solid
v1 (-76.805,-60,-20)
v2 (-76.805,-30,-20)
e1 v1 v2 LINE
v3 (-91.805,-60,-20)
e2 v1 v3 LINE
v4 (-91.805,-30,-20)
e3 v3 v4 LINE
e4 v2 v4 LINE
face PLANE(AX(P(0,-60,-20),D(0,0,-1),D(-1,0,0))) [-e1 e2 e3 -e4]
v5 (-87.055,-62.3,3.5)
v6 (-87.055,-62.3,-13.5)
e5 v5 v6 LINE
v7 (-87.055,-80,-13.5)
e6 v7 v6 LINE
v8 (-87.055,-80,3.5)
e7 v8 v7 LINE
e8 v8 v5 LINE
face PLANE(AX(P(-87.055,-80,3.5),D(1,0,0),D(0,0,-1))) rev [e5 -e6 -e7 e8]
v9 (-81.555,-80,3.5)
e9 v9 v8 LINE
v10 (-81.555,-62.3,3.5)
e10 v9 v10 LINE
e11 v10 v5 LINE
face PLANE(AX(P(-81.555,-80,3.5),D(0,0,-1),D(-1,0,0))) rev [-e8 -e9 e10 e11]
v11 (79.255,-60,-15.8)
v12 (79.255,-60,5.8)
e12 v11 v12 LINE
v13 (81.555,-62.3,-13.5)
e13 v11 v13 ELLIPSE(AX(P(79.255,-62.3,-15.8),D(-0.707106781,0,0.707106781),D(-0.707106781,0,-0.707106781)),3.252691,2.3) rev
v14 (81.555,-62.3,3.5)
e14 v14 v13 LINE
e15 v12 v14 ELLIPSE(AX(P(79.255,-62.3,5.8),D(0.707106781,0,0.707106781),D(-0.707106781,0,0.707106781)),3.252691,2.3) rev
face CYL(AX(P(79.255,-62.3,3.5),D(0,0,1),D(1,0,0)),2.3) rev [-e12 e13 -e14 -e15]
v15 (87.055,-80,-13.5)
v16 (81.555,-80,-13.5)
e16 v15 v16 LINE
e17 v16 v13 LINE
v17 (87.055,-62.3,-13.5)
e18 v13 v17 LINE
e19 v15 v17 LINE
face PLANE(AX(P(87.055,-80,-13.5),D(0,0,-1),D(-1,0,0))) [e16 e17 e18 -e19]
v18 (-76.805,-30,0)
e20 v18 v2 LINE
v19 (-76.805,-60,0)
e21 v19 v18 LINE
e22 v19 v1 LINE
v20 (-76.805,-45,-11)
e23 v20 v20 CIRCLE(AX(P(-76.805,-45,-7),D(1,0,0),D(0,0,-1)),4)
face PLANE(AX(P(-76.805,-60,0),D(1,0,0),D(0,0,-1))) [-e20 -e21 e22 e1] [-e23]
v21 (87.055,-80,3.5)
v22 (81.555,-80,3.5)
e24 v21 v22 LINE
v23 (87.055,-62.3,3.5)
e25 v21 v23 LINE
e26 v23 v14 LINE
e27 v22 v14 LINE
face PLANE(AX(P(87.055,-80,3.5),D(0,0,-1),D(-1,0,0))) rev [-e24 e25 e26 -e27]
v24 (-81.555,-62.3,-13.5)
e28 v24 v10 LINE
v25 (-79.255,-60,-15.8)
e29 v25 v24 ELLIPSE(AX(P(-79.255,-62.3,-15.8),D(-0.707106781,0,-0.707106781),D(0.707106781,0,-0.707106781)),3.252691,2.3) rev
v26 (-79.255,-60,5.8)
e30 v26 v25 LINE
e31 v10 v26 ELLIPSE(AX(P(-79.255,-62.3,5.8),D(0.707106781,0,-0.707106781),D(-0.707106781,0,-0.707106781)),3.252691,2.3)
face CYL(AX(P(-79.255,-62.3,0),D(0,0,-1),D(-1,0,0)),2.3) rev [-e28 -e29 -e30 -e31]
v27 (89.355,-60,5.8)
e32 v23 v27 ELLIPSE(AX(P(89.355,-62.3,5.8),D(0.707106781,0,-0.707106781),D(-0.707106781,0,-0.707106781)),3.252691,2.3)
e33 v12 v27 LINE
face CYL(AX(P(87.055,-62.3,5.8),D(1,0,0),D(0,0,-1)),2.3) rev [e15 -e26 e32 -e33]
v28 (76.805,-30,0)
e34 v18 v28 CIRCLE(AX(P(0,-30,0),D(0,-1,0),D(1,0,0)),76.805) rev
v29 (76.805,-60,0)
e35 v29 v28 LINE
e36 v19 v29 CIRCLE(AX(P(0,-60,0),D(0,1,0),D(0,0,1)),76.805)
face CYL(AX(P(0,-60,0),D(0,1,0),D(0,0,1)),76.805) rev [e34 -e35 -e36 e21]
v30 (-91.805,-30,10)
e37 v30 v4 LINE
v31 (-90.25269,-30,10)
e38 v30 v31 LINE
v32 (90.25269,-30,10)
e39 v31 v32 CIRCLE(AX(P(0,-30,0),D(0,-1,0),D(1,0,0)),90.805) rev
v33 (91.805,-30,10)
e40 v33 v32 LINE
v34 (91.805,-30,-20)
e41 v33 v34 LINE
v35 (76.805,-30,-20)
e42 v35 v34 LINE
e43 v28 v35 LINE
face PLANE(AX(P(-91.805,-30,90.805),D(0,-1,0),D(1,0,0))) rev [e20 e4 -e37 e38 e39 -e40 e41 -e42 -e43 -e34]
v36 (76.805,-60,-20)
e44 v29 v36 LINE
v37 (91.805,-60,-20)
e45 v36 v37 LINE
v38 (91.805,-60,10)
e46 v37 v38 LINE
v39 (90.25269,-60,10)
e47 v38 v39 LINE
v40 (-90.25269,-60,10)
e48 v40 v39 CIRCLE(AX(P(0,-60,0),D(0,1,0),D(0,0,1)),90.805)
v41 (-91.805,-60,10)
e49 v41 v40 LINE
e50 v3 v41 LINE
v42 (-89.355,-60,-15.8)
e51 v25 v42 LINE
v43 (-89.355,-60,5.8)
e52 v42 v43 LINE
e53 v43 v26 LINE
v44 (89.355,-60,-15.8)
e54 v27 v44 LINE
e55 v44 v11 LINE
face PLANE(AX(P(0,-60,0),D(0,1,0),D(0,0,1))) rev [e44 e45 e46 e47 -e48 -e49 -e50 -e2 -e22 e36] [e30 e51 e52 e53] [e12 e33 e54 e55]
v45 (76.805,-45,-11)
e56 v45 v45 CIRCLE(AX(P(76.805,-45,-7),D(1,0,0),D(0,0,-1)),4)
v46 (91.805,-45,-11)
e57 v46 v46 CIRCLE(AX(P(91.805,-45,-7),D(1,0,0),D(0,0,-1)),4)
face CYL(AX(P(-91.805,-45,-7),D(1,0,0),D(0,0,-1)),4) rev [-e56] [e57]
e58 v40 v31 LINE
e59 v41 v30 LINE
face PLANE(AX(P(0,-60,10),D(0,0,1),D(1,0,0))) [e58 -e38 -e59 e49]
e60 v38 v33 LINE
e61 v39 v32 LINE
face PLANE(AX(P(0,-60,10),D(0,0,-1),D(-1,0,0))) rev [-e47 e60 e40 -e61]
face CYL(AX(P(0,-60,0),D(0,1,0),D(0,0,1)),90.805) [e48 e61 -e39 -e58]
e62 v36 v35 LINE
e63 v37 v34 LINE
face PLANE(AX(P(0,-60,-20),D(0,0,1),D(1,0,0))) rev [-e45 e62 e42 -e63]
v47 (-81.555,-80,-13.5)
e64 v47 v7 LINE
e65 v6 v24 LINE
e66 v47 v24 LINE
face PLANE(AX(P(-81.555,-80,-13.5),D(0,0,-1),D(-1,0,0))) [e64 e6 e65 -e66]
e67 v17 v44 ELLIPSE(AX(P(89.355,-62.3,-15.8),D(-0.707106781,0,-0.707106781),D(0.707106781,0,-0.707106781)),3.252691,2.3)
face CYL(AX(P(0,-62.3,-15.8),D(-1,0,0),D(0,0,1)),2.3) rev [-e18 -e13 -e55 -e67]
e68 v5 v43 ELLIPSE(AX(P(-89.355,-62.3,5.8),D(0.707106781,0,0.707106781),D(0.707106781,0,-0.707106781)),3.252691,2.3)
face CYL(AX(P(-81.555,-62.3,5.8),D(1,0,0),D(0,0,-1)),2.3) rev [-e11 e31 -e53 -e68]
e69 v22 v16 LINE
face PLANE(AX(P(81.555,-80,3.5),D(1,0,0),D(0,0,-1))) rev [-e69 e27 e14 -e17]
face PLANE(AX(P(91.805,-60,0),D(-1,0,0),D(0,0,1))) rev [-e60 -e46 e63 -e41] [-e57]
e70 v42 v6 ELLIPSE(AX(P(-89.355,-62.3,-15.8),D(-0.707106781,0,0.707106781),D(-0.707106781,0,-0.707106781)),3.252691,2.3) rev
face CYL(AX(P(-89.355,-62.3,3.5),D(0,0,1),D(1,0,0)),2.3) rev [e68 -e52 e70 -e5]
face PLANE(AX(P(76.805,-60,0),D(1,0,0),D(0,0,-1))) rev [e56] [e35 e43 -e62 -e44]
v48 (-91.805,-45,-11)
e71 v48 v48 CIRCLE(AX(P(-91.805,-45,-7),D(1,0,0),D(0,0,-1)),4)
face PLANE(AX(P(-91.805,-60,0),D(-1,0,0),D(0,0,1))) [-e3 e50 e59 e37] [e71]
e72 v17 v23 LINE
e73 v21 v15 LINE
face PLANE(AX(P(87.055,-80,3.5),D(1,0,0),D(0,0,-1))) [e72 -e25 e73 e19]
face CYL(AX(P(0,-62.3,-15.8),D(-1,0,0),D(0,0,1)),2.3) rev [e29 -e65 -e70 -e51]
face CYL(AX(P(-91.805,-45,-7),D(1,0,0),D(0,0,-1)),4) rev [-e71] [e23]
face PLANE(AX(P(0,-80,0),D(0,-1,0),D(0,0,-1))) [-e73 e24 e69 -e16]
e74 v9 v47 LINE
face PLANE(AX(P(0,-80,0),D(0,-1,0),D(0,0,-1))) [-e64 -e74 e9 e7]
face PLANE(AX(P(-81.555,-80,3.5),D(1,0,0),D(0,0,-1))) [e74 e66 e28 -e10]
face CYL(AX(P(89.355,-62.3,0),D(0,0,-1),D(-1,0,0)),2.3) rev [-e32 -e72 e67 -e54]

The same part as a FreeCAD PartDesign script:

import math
import FreeCAD as App
import Part
import Sketcher
Q = App.Units.Quantity


def edges_at(feature, points):
    """Names of the edges that pass closest to the given points."""
    edges = feature.Shape.Edges
    near = lambda p: min(range(len(edges)), key=lambda i: edges[i].distToShape(Part.Vertex(*p))[0])
    return sorted({f"Edge{near(p) + 1}" for p in points})

doc = App.newDocument("Part")
params = doc.addObject("Spreadsheet::Sheet", "Params")
for row, (alias, value) in enumerate([
    ("sketch1_width", "15 mm"),
    ("sketch1_height", "30 mm"),
    ("sketch1_height2", "20 mm"),
    ("pad1_length", "60 mm"),
    ("sketch2_height", "17 mm"),
    ("sketch2_width", "5.5 mm"),
    ("pad2_length", "20 mm"),
    ("fillet_radius", "2.3 mm"),
    ("sketch3_height", "30 mm"),
    ("sketch3_width", "183.61 mm"),
    ("sketch4_diameter", "8 mm"),
], start=1):
    params.set(f"A{row}", alias)
    params.set(f"B{row}", "=" + value)
    params.setAlias(f"B{row}", alias)

body = doc.addObject("PartDesign::Body", "Body")

# Sketch on XZ plane
sketch1 = body.newObject("Sketcher::SketchObject", "Sketch")
sketch1.AttachmentSupport = (doc.getObject("XZ_Plane"), [""])
sketch1.MapMode = "FlatFace"
sketch1.addGeometry(Part.LineSegment(App.Vector(90.3, 10, 0), App.Vector(91.8, 10, 0)), False)
sketch1.addGeometry(Part.LineSegment(App.Vector(91.8, 10, 0), App.Vector(91.8, -20, 0)), False)
sketch1.addGeometry(Part.LineSegment(App.Vector(91.8, -20, 0), App.Vector(76.8, -20, 0)), False)
sketch1.addGeometry(Part.LineSegment(App.Vector(76.8, -20, 0), App.Vector(76.8, 0, 0)), False)
sketch1.addGeometry(Part.ArcOfCircle(Part.Circle(App.Vector(0, 0, 0), App.Vector(0, 0, 1), 76.8), math.radians(0), math.radians(180)), False)
sketch1.addGeometry(Part.LineSegment(App.Vector(-76.8, 0, 0), App.Vector(-76.8, -20, 0)), False)
sketch1.addGeometry(Part.LineSegment(App.Vector(-76.8, -20, 0), App.Vector(-91.8, -20, 0)), False)
sketch1.addGeometry(Part.LineSegment(App.Vector(-91.8, -20, 0), App.Vector(-91.8, 10, 0)), False)
sketch1.addGeometry(Part.LineSegment(App.Vector(-91.8, 10, 0), App.Vector(-90.3, 10, 0)), False)
sketch1.addGeometry(Part.ArcOfCircle(Part.Circle(App.Vector(0, 0, 0), App.Vector(0, 0, 1), 90.8), math.radians(6), math.radians(174)), False)
sketch1.addConstraint(Sketcher.Constraint("Coincident", 0, 2, 1, 1))
sketch1.addConstraint(Sketcher.Constraint("Coincident", 1, 2, 2, 1))
sketch1.addConstraint(Sketcher.Constraint("Coincident", 2, 2, 3, 1))
sketch1.addConstraint(Sketcher.Constraint("Tangent", 3, 2, 4, 1))
sketch1.addConstraint(Sketcher.Constraint("Tangent", 4, 2, 5, 1))
sketch1.addConstraint(Sketcher.Constraint("Coincident", 5, 2, 6, 1))
sketch1.addConstraint(Sketcher.Constraint("Coincident", 6, 2, 7, 1))
sketch1.addConstraint(Sketcher.Constraint("Coincident", 7, 2, 8, 1))
sketch1.addConstraint(Sketcher.Constraint("Coincident", 8, 2, 9, 2))
sketch1.addConstraint(Sketcher.Constraint("Coincident", 9, 1, 0, 1))
sketch1.addConstraint(Sketcher.Constraint("Horizontal", 0))
sketch1.addConstraint(Sketcher.Constraint("Vertical", 1))
sketch1.addConstraint(Sketcher.Constraint("Horizontal", 2))
sketch1.addConstraint(Sketcher.Constraint("Vertical", 3))
sketch1.addConstraint(Sketcher.Constraint("Vertical", 5))
sketch1.addConstraint(Sketcher.Constraint("Horizontal", 6))
sketch1.addConstraint(Sketcher.Constraint("Vertical", 7))
sketch1.addConstraint(Sketcher.Constraint("Horizontal", 8))
sketch1.addConstraint(Sketcher.Constraint("Coincident", 4, 3, -1, 1))
sketch1.addConstraint(Sketcher.Constraint("Coincident", 9, 3, -1, 1))
sketch1.addConstraint(Sketcher.Constraint("Symmetric", 1, 2, 6, 2, -2))
sketch1.addConstraint(Sketcher.Constraint("Horizontal", 0, 2, 7, 2))
sketch1.addConstraint(Sketcher.Constraint("DistanceX", 2, 2, 2, 1, Q("15 mm")))
sketch1.addConstraint(Sketcher.Constraint("DistanceY", 1, 2, 1, 1, Q("30 mm")))
sketch1.addConstraint(Sketcher.Constraint("DistanceY", 3, 1, 3, 2, Q("20 mm")))
sketch1.addConstraint(Sketcher.Constraint("Radius", 4, Q("76.805 mm")))
sketch1.addConstraint(Sketcher.Constraint("Radius", 9, Q("90.805 mm")))
sketch1.setExpression("Constraints[22]", "Params.sketch1_width")
sketch1.setExpression("Constraints[23]", "Params.sketch1_height")
sketch1.setExpression("Constraints[24]", "Params.sketch1_height2")
pad1 = body.newObject("PartDesign::Pad", "Pad")
pad1.Profile = sketch1
pad1.setExpression("Length", "Params.pad1_length")

# Sketch on XZ plane
sketch2 = body.newObject("Sketcher::SketchObject", "Sketch001")
sketch2.AttachmentSupport = (doc.getObject("XZ_Plane"), [""])
sketch2.MapMode = "FlatFace"
sketch2.AttachmentOffset = App.Placement(App.Vector(0, 0, 60), App.Rotation())
sketch2.addGeometry(Part.LineSegment(App.Vector(-82, -14, 0), App.Vector(-82, 4, 0)), False)
sketch2.addGeometry(Part.LineSegment(App.Vector(-82, 4, 0), App.Vector(-87, 4, 0)), False)
sketch2.addGeometry(Part.LineSegment(App.Vector(-87, 4, 0), App.Vector(-87, -14, 0)), False)
sketch2.addGeometry(Part.LineSegment(App.Vector(-87, -14, 0), App.Vector(-82, -14, 0)), False)
sketch2.addGeometry(Part.LineSegment(App.Vector(87, -14, 0), App.Vector(87, 4, 0)), False)
sketch2.addGeometry(Part.LineSegment(App.Vector(87, 4, 0), App.Vector(82, 4, 0)), False)
sketch2.addGeometry(Part.LineSegment(App.Vector(82, 4, 0), App.Vector(82, -14, 0)), False)
sketch2.addGeometry(Part.LineSegment(App.Vector(82, -14, 0), App.Vector(87, -14, 0)), False)
sketch2.addConstraint(Sketcher.Constraint("Coincident", 0, 2, 1, 1))
sketch2.addConstraint(Sketcher.Constraint("Coincident", 1, 2, 2, 1))
sketch2.addConstraint(Sketcher.Constraint("Coincident", 2, 2, 3, 1))
sketch2.addConstraint(Sketcher.Constraint("Coincident", 3, 2, 0, 1))
sketch2.addConstraint(Sketcher.Constraint("Coincident", 4, 2, 5, 1))
sketch2.addConstraint(Sketcher.Constraint("Coincident", 5, 2, 6, 1))
sketch2.addConstraint(Sketcher.Constraint("Coincident", 6, 2, 7, 1))
sketch2.addConstraint(Sketcher.Constraint("Coincident", 7, 2, 4, 1))
sketch2.addConstraint(Sketcher.Constraint("Vertical", 0))
sketch2.addConstraint(Sketcher.Constraint("Horizontal", 1))
sketch2.addConstraint(Sketcher.Constraint("Vertical", 2))
sketch2.addConstraint(Sketcher.Constraint("Horizontal", 3))
sketch2.addConstraint(Sketcher.Constraint("Vertical", 4))
sketch2.addConstraint(Sketcher.Constraint("Horizontal", 5))
sketch2.addConstraint(Sketcher.Constraint("Vertical", 6))
sketch2.addConstraint(Sketcher.Constraint("Horizontal", 7))
sketch2.addConstraint(Sketcher.Constraint("Symmetric", 1, 2, 4, 2, -2))
sketch2.addConstraint(Sketcher.Constraint("Symmetric", 3, 2, 6, 2, -2))
sketch2.addConstraint(Sketcher.Constraint("DistanceY", 0, 1, 0, 2, Q("17 mm")))
sketch2.addConstraint(Sketcher.Constraint("DistanceX", 1, 2, 1, 1, Q("5.5 mm")))
sketch2.addConstraint(Sketcher.Constraint("DistanceY", -1, 1, 0, 2, Q("3.5 mm")))
sketch2.addConstraint(Sketcher.Constraint("DistanceX", 0, 2, 4, 2, Q("168.61 mm")))
sketch2.setExpression("Constraints[18]", "Params.sketch2_height")
sketch2.setExpression("Constraints[19]", "Params.sketch2_width")
pad2 = body.newObject("PartDesign::Pad", "Pad001")
pad2.Profile = sketch2
pad2.setExpression("Length", "Params.pad2_length")
doc.recompute()

fillet = body.newObject("PartDesign::Fillet", "Fillet")
fillet.Base = (pad2, edges_at(pad2, [
    (84.305, -60, 3.5),
    (81.555, -60, -5),
    (87.055, -60, -5),
    (84.305, -60, -13.5),
    (-84.305, -60, 3.5),
    (-87.055, -60, -5),
    (-81.555, -60, -5),
    (-84.305, -60, -13.5),
]))
fillet.setExpression("Radius", "Params.fillet_radius")

# Sketch on XY plane
sketch3 = body.newObject("Sketcher::SketchObject", "Sketch002")
sketch3.AttachmentSupport = (doc.getObject("XY_Plane"), [""])
sketch3.MapMode = "FlatFace"
sketch3.AttachmentOffset = App.Placement(App.Vector(0, 0, -20), App.Rotation())
sketch3.addGeometry(Part.LineSegment(App.Vector(92, 0, 0), App.Vector(92, -30, 0)), False)
sketch3.addGeometry(Part.LineSegment(App.Vector(92, -30, 0), App.Vector(-92, -30, 0)), False)
sketch3.addGeometry(Part.LineSegment(App.Vector(-92, -30, 0), App.Vector(-92, 0, 0)), False)
sketch3.addGeometry(Part.LineSegment(App.Vector(-92, 0, 0), App.Vector(92, 0, 0)), False)
sketch3.addConstraint(Sketcher.Constraint("Coincident", 0, 2, 1, 1))
sketch3.addConstraint(Sketcher.Constraint("Coincident", 1, 2, 2, 1))
sketch3.addConstraint(Sketcher.Constraint("Coincident", 2, 2, 3, 1))
sketch3.addConstraint(Sketcher.Constraint("Coincident", 3, 2, 0, 1))
sketch3.addConstraint(Sketcher.Constraint("Vertical", 0))
sketch3.addConstraint(Sketcher.Constraint("Horizontal", 1))
sketch3.addConstraint(Sketcher.Constraint("Vertical", 2))
sketch3.addConstraint(Sketcher.Constraint("Horizontal", 3))
sketch3.addConstraint(Sketcher.Constraint("Symmetric", 2, 2, 3, 2, -1, 1))
sketch3.addConstraint(Sketcher.Constraint("DistanceY", 0, 2, 0, 1, Q("30 mm")))
sketch3.addConstraint(Sketcher.Constraint("DistanceX", 1, 2, 1, 1, Q("183.61 mm")))
sketch3.setExpression("Constraints[9]", "Params.sketch3_height")
sketch3.setExpression("Constraints[10]", "Params.sketch3_width")
pocket1 = body.newObject("PartDesign::Pocket", "Pocket")
pocket1.Profile = sketch3
pocket1.Type = "ThroughAll"
pocket1.Midplane = True

# Sketch on YZ plane
sketch4 = body.newObject("Sketcher::SketchObject", "Sketch003")
sketch4.AttachmentSupport = (doc.getObject("YZ_Plane"), [""])
sketch4.MapMode = "FlatFace"
sketch4.AttachmentOffset = App.Placement(App.Vector(0, 0, 91.805), App.Rotation())
sketch4.addGeometry(Part.Circle(App.Vector(-45, -7, 0), App.Vector(0, 0, 1), 4), False)
sketch4.addConstraint(Sketcher.Constraint("Diameter", 0, Q("8 mm")))
sketch4.addConstraint(Sketcher.Constraint("DistanceX", 0, 3, -1, 1, Q("45 mm")))
sketch4.addConstraint(Sketcher.Constraint("DistanceY", 0, 3, -1, 1, Q("7 mm")))
sketch4.setExpression("Constraints[0]", "Params.sketch4_diameter")
pocket2 = body.newObject("PartDesign::Pocket", "Pocket001")
pocket2.Profile = sketch4
pocket2.Type = "ThroughAll"

doc.recompute()
